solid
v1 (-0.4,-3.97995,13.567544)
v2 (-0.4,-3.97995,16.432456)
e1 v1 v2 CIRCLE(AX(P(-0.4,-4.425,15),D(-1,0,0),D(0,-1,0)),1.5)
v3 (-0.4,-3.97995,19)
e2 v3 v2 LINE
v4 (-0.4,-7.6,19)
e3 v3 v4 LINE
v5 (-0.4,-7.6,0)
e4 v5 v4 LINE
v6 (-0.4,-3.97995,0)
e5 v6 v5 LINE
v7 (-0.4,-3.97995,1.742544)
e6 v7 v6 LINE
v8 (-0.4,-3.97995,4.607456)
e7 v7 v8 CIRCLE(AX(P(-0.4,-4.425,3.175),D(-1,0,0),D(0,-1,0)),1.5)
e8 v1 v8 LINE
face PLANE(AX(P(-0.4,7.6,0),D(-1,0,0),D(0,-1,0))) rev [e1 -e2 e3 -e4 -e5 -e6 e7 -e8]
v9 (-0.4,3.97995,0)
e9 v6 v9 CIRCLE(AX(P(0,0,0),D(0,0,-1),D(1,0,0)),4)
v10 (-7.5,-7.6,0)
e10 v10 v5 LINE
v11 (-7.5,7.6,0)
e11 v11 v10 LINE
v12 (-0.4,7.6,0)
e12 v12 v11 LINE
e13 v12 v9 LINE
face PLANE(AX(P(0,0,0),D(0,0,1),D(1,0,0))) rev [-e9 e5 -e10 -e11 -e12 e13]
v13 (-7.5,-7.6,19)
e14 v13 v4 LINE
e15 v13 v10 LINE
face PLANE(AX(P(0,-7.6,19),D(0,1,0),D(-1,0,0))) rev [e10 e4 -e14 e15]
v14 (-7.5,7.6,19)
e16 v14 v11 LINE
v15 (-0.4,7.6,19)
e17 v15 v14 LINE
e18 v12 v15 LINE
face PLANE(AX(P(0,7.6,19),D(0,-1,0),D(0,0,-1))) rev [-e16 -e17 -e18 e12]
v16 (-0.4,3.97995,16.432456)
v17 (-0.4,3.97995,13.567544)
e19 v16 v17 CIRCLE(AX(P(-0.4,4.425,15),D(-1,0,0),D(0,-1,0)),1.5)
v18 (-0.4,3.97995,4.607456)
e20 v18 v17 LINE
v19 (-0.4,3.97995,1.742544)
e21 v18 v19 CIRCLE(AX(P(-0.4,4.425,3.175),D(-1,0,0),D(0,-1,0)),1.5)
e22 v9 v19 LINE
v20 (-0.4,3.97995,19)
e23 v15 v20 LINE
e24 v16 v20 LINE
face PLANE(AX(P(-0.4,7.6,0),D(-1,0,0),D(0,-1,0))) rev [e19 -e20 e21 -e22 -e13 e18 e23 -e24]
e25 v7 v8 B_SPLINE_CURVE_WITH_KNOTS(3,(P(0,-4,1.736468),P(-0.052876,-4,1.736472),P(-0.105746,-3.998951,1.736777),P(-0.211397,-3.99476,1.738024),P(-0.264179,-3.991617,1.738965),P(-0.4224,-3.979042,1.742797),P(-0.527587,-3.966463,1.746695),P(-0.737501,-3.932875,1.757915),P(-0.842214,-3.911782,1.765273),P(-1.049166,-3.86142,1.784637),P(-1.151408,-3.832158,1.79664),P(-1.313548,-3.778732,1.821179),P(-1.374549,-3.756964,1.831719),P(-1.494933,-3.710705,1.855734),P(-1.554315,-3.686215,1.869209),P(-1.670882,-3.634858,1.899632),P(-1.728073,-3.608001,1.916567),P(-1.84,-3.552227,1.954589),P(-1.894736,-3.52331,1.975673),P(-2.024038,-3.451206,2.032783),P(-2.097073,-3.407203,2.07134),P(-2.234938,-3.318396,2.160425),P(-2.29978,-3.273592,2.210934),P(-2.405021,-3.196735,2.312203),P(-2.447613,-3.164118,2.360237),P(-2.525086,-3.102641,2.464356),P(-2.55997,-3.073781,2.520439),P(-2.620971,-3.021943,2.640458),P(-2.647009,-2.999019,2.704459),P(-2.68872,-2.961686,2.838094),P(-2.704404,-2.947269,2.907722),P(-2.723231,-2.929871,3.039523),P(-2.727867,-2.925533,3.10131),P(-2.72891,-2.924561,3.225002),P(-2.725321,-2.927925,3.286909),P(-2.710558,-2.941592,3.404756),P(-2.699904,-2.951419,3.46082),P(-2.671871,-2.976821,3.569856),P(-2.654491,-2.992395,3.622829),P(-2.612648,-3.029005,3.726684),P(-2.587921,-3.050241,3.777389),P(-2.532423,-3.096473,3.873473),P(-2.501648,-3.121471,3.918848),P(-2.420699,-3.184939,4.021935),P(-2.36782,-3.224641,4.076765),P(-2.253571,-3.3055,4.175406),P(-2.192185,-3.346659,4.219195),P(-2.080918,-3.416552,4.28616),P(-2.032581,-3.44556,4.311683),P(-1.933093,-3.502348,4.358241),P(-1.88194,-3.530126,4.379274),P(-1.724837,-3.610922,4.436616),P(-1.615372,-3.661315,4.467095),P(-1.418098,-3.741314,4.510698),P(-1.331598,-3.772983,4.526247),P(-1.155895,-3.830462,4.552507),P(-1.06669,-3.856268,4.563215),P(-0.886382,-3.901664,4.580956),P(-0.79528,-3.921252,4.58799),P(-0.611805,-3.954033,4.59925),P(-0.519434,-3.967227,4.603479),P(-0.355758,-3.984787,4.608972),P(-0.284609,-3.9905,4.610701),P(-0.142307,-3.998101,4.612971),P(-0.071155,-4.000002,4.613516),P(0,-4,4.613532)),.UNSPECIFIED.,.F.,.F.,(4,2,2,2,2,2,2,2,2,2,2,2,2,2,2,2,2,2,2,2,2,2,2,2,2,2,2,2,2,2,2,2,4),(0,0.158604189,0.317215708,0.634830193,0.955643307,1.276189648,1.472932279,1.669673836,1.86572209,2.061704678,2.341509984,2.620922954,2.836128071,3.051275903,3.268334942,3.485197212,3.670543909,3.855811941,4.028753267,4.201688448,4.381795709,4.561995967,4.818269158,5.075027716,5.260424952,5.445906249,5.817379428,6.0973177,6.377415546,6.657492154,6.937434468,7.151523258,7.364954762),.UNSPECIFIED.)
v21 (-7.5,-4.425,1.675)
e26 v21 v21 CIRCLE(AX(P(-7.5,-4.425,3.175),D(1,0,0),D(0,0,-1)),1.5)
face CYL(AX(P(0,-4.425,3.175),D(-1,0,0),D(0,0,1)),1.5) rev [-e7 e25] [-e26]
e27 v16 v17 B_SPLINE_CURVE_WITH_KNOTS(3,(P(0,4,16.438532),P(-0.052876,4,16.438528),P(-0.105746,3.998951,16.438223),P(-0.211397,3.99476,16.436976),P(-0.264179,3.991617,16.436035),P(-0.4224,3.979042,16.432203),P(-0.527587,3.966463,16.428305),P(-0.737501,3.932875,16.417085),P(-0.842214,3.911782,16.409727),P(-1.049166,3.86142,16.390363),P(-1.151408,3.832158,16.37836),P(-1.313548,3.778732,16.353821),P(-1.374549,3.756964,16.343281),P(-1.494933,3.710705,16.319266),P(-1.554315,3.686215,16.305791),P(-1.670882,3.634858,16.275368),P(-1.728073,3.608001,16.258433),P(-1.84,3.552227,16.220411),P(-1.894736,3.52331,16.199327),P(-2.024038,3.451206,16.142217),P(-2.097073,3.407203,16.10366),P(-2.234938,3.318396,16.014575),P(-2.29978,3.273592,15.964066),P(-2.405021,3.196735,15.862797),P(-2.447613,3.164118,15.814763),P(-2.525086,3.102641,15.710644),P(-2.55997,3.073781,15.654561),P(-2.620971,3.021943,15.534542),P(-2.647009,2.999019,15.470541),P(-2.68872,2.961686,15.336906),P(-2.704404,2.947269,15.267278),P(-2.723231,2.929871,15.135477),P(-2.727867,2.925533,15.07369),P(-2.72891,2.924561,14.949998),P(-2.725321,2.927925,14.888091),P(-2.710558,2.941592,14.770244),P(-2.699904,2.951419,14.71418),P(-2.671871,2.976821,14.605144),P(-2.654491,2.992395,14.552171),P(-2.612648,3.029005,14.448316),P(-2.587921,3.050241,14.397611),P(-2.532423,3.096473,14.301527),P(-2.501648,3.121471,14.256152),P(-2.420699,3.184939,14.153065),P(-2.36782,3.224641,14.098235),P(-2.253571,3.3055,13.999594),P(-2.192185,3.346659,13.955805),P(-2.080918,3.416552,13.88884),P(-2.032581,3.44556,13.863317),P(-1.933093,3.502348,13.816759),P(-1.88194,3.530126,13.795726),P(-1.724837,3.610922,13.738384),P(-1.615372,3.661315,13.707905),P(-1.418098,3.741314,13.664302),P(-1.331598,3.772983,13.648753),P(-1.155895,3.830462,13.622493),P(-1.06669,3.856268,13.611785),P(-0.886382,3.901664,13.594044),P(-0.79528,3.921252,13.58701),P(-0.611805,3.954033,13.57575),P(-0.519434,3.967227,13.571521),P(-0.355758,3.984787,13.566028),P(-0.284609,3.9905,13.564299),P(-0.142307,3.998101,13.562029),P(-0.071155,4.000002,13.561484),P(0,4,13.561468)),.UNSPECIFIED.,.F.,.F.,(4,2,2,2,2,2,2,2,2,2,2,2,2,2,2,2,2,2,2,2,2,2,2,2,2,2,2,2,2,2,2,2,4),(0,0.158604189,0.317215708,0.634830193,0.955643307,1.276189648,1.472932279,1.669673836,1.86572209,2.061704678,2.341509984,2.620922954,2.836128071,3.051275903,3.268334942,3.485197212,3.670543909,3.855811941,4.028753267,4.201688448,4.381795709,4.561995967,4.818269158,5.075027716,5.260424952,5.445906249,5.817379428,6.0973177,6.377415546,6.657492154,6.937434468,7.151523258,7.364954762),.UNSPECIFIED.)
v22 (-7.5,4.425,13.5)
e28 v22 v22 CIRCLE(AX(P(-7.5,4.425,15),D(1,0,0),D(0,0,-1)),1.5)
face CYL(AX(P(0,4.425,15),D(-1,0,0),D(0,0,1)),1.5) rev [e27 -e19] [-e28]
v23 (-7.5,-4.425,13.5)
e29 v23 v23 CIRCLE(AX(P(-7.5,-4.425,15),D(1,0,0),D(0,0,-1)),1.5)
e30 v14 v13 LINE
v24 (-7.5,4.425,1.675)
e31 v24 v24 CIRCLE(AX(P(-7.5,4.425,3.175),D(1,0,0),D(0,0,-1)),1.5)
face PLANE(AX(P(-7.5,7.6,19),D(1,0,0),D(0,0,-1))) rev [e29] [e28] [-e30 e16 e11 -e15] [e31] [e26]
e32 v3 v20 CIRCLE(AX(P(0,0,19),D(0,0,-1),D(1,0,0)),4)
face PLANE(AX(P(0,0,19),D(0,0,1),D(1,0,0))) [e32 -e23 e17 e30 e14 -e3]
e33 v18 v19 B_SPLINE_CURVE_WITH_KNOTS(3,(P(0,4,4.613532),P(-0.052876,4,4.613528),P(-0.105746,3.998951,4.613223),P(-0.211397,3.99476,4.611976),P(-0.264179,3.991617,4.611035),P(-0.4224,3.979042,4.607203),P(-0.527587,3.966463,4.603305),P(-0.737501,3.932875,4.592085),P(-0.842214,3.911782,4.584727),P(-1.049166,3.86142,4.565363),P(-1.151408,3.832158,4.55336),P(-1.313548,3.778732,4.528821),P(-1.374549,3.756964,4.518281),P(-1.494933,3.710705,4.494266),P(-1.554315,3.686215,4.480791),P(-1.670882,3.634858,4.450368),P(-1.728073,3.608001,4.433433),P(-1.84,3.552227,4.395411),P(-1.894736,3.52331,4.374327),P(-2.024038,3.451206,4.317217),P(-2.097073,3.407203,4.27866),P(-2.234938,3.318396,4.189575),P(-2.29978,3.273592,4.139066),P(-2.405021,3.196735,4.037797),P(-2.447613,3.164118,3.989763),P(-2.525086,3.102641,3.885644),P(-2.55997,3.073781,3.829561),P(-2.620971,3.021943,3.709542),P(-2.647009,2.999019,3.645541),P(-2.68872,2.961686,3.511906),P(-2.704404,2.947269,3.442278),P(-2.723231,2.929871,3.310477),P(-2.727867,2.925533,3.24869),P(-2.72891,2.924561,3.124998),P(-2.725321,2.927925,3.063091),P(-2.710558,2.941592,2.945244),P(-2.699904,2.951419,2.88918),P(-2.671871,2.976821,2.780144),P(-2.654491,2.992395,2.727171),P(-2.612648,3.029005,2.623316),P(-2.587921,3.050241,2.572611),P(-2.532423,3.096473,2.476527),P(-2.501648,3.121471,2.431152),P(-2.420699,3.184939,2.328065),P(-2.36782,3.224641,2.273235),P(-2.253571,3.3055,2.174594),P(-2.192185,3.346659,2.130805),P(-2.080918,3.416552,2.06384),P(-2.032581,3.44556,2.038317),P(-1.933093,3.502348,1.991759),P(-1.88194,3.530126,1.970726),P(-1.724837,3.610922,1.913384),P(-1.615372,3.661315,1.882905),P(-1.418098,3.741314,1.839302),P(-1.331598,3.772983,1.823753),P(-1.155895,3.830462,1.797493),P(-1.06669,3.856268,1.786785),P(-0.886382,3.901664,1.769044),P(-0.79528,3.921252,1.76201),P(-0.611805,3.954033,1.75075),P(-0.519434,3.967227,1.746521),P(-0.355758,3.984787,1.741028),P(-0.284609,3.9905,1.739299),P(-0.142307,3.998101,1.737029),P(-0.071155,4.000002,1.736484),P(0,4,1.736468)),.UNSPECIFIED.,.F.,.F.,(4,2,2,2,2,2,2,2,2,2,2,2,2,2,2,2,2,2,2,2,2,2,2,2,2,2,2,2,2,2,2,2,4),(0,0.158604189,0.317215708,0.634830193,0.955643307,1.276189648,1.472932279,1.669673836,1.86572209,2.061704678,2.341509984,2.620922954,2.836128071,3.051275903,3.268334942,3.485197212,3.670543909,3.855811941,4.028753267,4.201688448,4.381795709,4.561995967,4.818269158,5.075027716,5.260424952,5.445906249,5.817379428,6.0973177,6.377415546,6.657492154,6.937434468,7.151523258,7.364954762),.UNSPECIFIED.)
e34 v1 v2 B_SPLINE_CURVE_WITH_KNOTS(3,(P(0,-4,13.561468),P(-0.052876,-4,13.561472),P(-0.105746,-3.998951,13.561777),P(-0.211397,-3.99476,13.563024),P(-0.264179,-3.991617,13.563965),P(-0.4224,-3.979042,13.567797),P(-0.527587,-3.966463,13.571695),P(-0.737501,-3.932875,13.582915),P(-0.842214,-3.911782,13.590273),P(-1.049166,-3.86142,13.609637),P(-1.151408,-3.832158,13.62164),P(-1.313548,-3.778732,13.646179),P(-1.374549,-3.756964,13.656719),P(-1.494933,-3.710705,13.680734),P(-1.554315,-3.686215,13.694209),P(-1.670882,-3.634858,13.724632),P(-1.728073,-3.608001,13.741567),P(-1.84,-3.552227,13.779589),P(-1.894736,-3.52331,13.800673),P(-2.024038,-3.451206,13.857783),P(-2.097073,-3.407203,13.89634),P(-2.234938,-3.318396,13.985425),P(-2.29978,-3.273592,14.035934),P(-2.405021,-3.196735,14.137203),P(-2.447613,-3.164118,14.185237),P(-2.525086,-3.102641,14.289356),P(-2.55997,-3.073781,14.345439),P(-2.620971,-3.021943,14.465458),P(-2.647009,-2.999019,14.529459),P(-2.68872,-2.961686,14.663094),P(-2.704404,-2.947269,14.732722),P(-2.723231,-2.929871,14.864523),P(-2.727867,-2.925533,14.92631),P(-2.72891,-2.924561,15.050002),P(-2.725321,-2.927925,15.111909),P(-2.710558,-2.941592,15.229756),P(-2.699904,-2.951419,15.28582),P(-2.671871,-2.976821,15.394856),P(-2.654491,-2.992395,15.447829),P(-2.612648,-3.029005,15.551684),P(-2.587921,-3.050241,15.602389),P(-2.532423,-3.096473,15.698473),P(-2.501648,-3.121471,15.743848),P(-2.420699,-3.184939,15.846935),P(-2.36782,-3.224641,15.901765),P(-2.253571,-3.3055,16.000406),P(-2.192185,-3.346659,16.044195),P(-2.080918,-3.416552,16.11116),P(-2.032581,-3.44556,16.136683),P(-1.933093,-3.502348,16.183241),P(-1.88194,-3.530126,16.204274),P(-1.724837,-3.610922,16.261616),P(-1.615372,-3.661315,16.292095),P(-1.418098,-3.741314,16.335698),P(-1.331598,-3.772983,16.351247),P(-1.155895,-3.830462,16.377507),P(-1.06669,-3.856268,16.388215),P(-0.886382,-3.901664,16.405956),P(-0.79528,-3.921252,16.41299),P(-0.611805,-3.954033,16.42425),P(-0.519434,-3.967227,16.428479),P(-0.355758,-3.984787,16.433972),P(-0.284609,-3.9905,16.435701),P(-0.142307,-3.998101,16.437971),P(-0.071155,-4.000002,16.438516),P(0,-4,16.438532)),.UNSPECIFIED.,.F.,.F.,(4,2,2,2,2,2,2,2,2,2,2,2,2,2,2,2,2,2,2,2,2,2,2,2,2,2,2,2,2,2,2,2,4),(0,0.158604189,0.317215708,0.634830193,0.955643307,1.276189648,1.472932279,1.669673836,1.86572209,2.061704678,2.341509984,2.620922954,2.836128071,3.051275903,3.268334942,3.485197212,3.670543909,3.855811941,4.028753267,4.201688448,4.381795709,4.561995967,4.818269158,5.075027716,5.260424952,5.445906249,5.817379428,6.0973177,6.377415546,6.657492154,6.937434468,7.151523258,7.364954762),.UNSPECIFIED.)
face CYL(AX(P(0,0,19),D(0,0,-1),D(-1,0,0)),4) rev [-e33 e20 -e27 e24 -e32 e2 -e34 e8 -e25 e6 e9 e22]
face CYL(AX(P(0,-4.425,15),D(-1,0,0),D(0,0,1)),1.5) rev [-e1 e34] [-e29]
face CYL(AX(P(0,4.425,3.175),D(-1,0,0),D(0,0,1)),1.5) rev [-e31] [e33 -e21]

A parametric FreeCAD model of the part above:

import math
import FreeCAD as App
import Part
import Sketcher
from FreeCAD import Vector


def add_polygon(sketch, points):
    """Adds a closed chain of lines whose ends are joined by coincident constraints."""
    first, n = sketch.GeometryCount, len(points)
    for a, b in zip(points, points[1:] + points[:1]):
        sketch.addGeometry(Part.LineSegment(App.Vector(*a, 0), App.Vector(*b, 0)), False)
    for i in range(n):
        sketch.addConstraint(Sketcher.Constraint("Coincident", first + i, 2, first + (i + 1) % n, 1))

doc = App.newDocument("Part")
body = doc.addObject("PartDesign::Body", "Body")

# Sketch on XY plane
sketch1 = body.newObject("Sketcher::SketchObject", "Sketch")
sketch1.AttachmentSupport = (doc.getObject("XY_Plane"), [""])
sketch1.MapMode = "FlatFace"
sketch1.addGeometry(Part.LineSegment(Vector(0, 4, 0), Vector(0, 7.6, 0)), False)
sketch1.addGeometry(Part.LineSegment(Vector(0, 7.6, 0), Vector(-7.5, 7.6, 0)), False)
sketch1.addGeometry(Part.LineSegment(Vector(-7.5, 7.6, 0), Vector(-7.5, -7.6, 0)), False)
sketch1.addGeometry(Part.LineSegment(Vector(-7.5, -7.6, 0), Vector(0, -7.6, 0)), False)
sketch1.addGeometry(Part.LineSegment(Vector(0, -7.6, 0), Vector(0, -4, 0)), False)
sketch1.addGeometry(Part.ArcOfCircle(Part.Circle(Vector(0, 0, 0), Vector(0, 0, 1), 4), math.radians(90), math.radians(270)), False)
sketch1.addConstraint(Sketcher.Constraint("Coincident", 0, 2, 1, 1))
sketch1.addConstraint(Sketcher.Constraint("Coincident", 1, 2, 2, 1))
sketch1.addConstraint(Sketcher.Constraint("Coincident", 2, 2, 3, 1))
sketch1.addConstraint(Sketcher.Constraint("Coincident", 3, 2, 4, 1))
sketch1.addConstraint(Sketcher.Constraint("Coincident", 4, 2, 5, 2))
sketch1.addConstraint(Sketcher.Constraint("Coincident", 5, 1, 0, 1))
sketch1.addConstraint(Sketcher.Constraint("Vertical", 0))
sketch1.addConstraint(Sketcher.Constraint("Horizontal", 1))
sketch1.addConstraint(Sketcher.Constraint("Vertical", 2))
sketch1.addConstraint(Sketcher.Constraint("Horizontal", 3))
sketch1.addConstraint(Sketcher.Constraint("Vertical", 4))
sketch1.addConstraint(Sketcher.Constraint("Coincident", 5, 3, -1, 1))
sketch1.addConstraint(Sketcher.Constraint("Symmetric", 0, 2, 3, 2, -1, 1))
sketch1.addConstraint(Sketcher.Constraint("PointOnObject", 0, 2, -2))
sketch1.addConstraint(Sketcher.Constraint("Radius", 5, 4.0))
sketch1.addConstraint(Sketcher.Constraint("DistanceX", 1, 2, 1, 1, 7.5))
sketch1.addConstraint(Sketcher.Constraint("DistanceY", 0, 1, 0, 2, 3.6))
pad1 = body.newObject("PartDesign::Pad", "Pad")
pad1.Profile = sketch1
pad1.Length = 19

# Sketch on YZ plane
sketch2 = body.newObject("Sketcher::SketchObject", "Sketch001")
sketch2.AttachmentSupport = (doc.getObject("YZ_Plane"), [""])
sketch2.MapMode = "FlatFace"
sketch2.AttachmentOffset = App.Placement(Vector(0, 0, -7.5), App.Rotation())
sketch2.addGeometry(Part.Circle(Vector(4.4, 3.2, 0), Vector(0, 0, 1), 1.5), False)
sketch2.addGeometry(Part.Circle(Vector(4.4, 15, 0), Vector(0, 0, 1), 1.5), False)
sketch2.addGeometry(Part.Circle(Vector(-4.4, 15, 0), Vector(0, 0, 1), 1.5), False)
sketch2.addGeometry(Part.Circle(Vector(-4.4, 3.2, 0), Vector(0, 0, 1), 1.5), False)
sketch2.addConstraint(Sketcher.Constraint("Equal", 0, 1))
sketch2.addConstraint(Sketcher.Constraint("Equal", 1, 2))
sketch2.addConstraint(Sketcher.Constraint("Equal", 2, 3))
sketch2.addConstraint(Sketcher.Constraint("Symmetric", 1, 3, 2, 3, -2))
sketch2.addConstraint(Sketcher.Constraint("Symmetric", 0, 3, 3, 3, -2))
sketch2.addConstraint(Sketcher.Constraint("Vertical", 0, 3, 1, 3))
sketch2.addConstraint(Sketcher.Constraint("Diameter", 0, 3.0))
sketch2.addConstraint(Sketcher.Constraint("DistanceY", -1, 1, 1, 3, 15.0))
sketch2.addConstraint(Sketcher.Constraint("DistanceX", 2, 3, 1, 3, 8.85))
sketch2.addConstraint(Sketcher.Constraint("DistanceY", -1, 1, 0, 3, 3.175))
pocket1 = body.newObject("PartDesign::Pocket", "Pocket")
pocket1.Profile = sketch2
pocket1.Type = "ThroughAll"
pocket1.Reversed = True

# Sketch on XY plane
sketch3 = body.newObject("Sketcher::SketchObject", "Sketch002")
sketch3.AttachmentSupport = (doc.getObject("XY_Plane"), [""])
sketch3.MapMode = "FlatFace"
sketch3.AttachmentOffset = App.Placement(Vector(0, 0, 19), App.Rotation())
add_polygon(sketch3, [(-0.4, 7.6), (-0.4, -7.6), (0, -7.6), (0, 7.6)])  # lines 0-3
sketch3.addConstraint(Sketcher.Constraint("Vertical", 0))
sketch3.addConstraint(Sketcher.Constraint("Horizontal", 1))
sketch3.addConstraint(Sketcher.Constraint("Vertical", 2))
sketch3.addConstraint(Sketcher.Constraint("Horizontal", 3))
sketch3.addConstraint(Sketcher.Constraint("Symmetric", 1, 2, 2, 2, -1, 1))
sketch3.addConstraint(Sketcher.Constraint("DistanceX", 1, 1, 1, 2, 0.4))
sketch3.addConstraint(Sketcher.Constraint("DistanceY", 0, 2, 0, 1, 15.2))
pocket2 = body.newObject("PartDesign::Pocket", "Pocket001")
pocket2.Profile = sketch3
pocket2.Type = "ThroughAll"

doc.recompute()
